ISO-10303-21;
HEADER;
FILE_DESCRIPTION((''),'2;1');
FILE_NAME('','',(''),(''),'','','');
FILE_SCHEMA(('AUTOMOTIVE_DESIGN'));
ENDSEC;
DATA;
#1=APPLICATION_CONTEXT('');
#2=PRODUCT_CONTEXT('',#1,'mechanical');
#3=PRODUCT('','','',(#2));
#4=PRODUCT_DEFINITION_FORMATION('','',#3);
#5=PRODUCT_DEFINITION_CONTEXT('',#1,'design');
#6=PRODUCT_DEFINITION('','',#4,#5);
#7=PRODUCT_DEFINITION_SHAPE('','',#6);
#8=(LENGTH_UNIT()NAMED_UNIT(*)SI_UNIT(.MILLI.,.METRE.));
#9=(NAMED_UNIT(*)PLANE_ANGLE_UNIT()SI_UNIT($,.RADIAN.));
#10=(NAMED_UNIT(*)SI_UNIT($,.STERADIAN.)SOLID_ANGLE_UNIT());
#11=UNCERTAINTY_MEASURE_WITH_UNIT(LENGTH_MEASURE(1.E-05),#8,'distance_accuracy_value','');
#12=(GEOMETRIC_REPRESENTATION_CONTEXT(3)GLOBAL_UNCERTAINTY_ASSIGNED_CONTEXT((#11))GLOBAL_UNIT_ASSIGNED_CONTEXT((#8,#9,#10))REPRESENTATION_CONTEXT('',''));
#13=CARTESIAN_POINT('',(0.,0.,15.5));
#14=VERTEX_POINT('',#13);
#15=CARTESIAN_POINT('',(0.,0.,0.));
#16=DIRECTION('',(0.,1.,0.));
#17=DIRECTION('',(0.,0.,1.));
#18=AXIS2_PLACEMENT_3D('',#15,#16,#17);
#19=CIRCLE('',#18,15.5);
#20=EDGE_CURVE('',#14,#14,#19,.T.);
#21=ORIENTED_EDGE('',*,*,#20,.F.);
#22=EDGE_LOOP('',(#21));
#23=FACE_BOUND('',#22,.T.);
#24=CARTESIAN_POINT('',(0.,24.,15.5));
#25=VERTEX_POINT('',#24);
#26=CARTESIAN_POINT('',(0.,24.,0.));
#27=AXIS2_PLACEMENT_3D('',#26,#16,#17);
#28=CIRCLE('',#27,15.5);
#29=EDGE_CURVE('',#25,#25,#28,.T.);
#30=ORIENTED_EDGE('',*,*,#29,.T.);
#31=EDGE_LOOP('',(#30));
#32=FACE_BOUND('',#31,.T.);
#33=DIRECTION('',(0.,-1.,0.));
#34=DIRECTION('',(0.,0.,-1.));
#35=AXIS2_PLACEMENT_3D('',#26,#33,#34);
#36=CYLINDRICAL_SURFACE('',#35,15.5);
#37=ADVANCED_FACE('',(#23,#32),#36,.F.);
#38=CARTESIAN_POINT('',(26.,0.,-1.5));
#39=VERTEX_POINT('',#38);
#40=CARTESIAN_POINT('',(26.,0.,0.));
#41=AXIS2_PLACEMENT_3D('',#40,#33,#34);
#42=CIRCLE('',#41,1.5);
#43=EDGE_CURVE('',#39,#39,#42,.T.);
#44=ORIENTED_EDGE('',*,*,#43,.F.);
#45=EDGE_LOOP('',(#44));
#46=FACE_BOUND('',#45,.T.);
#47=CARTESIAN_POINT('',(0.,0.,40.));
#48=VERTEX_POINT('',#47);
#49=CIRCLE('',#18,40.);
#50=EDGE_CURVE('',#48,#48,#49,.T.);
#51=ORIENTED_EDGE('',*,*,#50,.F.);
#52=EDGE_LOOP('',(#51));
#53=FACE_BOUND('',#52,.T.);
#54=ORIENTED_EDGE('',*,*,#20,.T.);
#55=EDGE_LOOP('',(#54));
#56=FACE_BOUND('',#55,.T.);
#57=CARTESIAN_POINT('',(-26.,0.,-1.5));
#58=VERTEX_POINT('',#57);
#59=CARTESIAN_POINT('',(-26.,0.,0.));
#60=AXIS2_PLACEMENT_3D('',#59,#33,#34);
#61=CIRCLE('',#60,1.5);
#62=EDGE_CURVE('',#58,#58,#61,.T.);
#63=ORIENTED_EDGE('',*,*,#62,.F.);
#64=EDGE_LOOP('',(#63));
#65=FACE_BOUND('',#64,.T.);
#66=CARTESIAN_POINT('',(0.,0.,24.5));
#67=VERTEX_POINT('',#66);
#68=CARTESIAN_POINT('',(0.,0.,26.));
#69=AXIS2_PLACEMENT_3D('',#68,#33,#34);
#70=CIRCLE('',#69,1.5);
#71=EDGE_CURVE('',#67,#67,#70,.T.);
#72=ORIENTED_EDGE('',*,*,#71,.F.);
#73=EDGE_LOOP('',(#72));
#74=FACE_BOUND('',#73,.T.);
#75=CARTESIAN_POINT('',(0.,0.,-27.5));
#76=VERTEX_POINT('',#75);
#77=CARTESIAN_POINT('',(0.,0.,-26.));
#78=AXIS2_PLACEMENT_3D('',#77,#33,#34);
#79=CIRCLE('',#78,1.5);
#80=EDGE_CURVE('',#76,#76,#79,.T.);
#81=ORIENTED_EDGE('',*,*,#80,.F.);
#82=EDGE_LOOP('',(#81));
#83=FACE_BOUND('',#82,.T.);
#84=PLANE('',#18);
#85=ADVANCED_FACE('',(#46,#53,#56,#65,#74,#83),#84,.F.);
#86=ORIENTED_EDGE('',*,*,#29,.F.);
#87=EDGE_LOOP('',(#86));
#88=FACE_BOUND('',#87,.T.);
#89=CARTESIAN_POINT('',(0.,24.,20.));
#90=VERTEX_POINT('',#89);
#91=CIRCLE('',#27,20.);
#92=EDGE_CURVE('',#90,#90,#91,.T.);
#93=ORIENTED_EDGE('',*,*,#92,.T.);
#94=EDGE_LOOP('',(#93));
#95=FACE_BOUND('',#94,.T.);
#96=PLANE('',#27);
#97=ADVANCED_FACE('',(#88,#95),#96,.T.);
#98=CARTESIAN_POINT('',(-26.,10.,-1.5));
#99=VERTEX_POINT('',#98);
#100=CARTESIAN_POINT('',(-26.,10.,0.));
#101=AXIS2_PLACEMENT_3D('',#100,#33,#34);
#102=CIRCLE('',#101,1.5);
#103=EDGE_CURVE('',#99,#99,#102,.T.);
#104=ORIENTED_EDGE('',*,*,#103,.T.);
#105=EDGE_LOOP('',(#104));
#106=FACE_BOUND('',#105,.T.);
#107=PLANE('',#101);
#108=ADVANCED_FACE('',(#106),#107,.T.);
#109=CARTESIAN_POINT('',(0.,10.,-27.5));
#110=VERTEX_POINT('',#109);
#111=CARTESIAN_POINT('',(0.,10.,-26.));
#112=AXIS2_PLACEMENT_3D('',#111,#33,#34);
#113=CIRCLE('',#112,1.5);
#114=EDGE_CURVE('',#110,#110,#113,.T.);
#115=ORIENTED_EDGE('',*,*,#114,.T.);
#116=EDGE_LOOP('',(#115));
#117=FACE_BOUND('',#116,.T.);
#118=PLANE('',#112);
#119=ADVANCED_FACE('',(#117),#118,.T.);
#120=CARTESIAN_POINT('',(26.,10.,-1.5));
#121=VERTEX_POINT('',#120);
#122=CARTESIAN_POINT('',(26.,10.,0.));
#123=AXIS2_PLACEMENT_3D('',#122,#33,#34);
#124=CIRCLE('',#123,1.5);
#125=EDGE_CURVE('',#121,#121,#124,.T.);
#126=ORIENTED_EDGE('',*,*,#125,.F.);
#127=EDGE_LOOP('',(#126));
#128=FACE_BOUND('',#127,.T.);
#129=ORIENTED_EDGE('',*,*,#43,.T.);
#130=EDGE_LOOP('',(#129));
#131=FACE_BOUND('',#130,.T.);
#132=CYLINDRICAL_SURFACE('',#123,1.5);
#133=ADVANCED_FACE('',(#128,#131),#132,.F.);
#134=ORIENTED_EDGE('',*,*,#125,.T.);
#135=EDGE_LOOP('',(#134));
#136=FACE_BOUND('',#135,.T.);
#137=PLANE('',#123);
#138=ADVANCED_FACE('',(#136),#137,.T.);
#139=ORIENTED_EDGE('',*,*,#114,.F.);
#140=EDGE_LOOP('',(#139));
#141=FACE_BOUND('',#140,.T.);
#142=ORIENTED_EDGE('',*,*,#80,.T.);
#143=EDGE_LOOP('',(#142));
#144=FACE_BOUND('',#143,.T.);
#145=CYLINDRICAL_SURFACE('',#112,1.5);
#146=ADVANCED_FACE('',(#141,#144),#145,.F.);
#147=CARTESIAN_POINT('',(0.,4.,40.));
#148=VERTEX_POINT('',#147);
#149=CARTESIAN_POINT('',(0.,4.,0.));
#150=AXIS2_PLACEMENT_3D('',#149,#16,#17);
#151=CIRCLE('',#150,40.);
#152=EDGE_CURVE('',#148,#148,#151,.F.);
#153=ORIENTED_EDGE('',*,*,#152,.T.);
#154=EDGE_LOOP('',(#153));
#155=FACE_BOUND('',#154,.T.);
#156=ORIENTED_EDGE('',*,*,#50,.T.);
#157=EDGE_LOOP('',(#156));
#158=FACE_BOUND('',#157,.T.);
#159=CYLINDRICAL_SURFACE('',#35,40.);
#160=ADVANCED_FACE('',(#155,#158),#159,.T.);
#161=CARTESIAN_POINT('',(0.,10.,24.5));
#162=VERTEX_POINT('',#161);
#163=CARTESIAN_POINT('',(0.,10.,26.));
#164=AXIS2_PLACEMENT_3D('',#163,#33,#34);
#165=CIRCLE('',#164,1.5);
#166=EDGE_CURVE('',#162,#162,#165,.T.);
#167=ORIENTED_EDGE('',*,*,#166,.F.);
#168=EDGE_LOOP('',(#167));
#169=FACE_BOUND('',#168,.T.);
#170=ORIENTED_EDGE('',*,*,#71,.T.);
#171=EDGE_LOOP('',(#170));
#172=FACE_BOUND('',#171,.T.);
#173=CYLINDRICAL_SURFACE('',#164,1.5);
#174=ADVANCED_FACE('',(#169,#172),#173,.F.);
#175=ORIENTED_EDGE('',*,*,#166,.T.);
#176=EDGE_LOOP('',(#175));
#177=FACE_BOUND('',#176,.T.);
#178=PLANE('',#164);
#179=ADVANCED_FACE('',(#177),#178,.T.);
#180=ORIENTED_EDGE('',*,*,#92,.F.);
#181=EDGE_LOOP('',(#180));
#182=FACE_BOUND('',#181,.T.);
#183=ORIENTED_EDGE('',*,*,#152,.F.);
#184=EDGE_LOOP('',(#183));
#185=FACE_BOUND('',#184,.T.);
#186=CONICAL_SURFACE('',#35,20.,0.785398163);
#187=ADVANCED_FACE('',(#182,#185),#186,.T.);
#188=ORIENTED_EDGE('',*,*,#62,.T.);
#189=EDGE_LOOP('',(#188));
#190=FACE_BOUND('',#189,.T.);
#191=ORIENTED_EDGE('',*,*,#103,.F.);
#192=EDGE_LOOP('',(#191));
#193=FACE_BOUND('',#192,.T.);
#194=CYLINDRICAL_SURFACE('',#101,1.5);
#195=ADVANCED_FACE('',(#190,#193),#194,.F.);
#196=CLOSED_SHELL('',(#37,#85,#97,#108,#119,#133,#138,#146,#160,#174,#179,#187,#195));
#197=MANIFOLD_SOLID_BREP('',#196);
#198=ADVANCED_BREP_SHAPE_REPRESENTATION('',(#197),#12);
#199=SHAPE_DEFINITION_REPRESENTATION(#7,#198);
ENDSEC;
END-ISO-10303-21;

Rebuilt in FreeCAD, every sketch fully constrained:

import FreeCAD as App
import Part
import Sketcher
Q = App.Units.Quantity


def edges_at(feature, points):
    """Names of the edges that pass closest to the given points."""
    edges = feature.Shape.Edges
    near = lambda p: min(range(len(edges)), key=lambda i: edges[i].distToShape(Part.Vertex(*p))[0])
    return sorted({f"Edge{near(p) + 1}" for p in points})

doc = App.newDocument("Part")
body = doc.addObject("PartDesign::Body", "Body")

sketch1 = body.newObject("Sketcher::SketchObject", "Sketch")
sketch1.AttachmentSupport = (doc.getObject("XZ_Plane"), [""])
sketch1.MapMode = "FlatFace"
sketch1.addGeometry([
    Part.Circle(App.Vector(0, 0, 0), App.Vector(0, 0, 1), 40),
    Part.Circle(App.Vector(0, 0, 0), App.Vector(0, 0, 1), 15.5),
], False)
sketch1.addConstraint([
    Sketcher.Constraint("Coincident", 0, 3, -1, 1),
    Sketcher.Constraint("Coincident", 1, 3, -1, 1),
    Sketcher.Constraint("Diameter", 0, Q("80 mm")),
    Sketcher.Constraint("Diameter", 1, Q("31 mm")),
])
pad1 = body.newObject("PartDesign::Pad", "Pad")
pad1.Profile = sketch1
pad1.Length = 24
pad1.Reversed = True
doc.recompute()

chamfer = body.newObject("PartDesign::Chamfer", "Chamfer")
chamfer.Base = (pad1, edges_at(pad1, [(0, 24, -40)]))
chamfer.Size = 20

sketch2 = body.newObject("Sketcher::SketchObject", "Sketch001")
sketch2.AttachmentSupport = (doc.getObject("XZ_Plane"), [""])
sketch2.MapMode = "FlatFace"
sketch2.addGeometry([
    Part.Circle(App.Vector(0, 26, 0), App.Vector(0, 0, 1), 1.5),
    Part.Circle(App.Vector(26, 0, 0), App.Vector(0, 0, 1), 1.5),
    Part.Circle(App.Vector(0, -26, 0), App.Vector(0, 0, 1), 1.5),
    Part.Circle(App.Vector(-26, 0, 0), App.Vector(0, 0, 1), 1.5),
], False)
sketch2.addConstraint([
    Sketcher.Constraint("Equal", 0, 1),
    Sketcher.Constraint("Equal", 1, 2),
    Sketcher.Constraint("Equal", 2, 3),
    Sketcher.Constraint("Symmetric", 0, 3, 2, 3, -1, 1),
    Sketcher.Constraint("Symmetric", 1, 3, 3, 3, -1, 1),
    Sketcher.Constraint("PointOnObject", 0, 3, -2),
    Sketcher.Constraint("PointOnObject", 1, 3, -1),
    Sketcher.Constraint("Diameter", 0, Q("3 mm")),
    Sketcher.Constraint("DistanceY", -1, 1, 0, 3, Q("26 mm")),
    Sketcher.Constraint("DistanceX", -1, 1, 1, 3, Q("26 mm")),
])
pocket1 = body.newObject("PartDesign::Pocket", "Pocket")
pocket1.Profile = sketch2
pocket1.Length = 10

doc.recompute()
